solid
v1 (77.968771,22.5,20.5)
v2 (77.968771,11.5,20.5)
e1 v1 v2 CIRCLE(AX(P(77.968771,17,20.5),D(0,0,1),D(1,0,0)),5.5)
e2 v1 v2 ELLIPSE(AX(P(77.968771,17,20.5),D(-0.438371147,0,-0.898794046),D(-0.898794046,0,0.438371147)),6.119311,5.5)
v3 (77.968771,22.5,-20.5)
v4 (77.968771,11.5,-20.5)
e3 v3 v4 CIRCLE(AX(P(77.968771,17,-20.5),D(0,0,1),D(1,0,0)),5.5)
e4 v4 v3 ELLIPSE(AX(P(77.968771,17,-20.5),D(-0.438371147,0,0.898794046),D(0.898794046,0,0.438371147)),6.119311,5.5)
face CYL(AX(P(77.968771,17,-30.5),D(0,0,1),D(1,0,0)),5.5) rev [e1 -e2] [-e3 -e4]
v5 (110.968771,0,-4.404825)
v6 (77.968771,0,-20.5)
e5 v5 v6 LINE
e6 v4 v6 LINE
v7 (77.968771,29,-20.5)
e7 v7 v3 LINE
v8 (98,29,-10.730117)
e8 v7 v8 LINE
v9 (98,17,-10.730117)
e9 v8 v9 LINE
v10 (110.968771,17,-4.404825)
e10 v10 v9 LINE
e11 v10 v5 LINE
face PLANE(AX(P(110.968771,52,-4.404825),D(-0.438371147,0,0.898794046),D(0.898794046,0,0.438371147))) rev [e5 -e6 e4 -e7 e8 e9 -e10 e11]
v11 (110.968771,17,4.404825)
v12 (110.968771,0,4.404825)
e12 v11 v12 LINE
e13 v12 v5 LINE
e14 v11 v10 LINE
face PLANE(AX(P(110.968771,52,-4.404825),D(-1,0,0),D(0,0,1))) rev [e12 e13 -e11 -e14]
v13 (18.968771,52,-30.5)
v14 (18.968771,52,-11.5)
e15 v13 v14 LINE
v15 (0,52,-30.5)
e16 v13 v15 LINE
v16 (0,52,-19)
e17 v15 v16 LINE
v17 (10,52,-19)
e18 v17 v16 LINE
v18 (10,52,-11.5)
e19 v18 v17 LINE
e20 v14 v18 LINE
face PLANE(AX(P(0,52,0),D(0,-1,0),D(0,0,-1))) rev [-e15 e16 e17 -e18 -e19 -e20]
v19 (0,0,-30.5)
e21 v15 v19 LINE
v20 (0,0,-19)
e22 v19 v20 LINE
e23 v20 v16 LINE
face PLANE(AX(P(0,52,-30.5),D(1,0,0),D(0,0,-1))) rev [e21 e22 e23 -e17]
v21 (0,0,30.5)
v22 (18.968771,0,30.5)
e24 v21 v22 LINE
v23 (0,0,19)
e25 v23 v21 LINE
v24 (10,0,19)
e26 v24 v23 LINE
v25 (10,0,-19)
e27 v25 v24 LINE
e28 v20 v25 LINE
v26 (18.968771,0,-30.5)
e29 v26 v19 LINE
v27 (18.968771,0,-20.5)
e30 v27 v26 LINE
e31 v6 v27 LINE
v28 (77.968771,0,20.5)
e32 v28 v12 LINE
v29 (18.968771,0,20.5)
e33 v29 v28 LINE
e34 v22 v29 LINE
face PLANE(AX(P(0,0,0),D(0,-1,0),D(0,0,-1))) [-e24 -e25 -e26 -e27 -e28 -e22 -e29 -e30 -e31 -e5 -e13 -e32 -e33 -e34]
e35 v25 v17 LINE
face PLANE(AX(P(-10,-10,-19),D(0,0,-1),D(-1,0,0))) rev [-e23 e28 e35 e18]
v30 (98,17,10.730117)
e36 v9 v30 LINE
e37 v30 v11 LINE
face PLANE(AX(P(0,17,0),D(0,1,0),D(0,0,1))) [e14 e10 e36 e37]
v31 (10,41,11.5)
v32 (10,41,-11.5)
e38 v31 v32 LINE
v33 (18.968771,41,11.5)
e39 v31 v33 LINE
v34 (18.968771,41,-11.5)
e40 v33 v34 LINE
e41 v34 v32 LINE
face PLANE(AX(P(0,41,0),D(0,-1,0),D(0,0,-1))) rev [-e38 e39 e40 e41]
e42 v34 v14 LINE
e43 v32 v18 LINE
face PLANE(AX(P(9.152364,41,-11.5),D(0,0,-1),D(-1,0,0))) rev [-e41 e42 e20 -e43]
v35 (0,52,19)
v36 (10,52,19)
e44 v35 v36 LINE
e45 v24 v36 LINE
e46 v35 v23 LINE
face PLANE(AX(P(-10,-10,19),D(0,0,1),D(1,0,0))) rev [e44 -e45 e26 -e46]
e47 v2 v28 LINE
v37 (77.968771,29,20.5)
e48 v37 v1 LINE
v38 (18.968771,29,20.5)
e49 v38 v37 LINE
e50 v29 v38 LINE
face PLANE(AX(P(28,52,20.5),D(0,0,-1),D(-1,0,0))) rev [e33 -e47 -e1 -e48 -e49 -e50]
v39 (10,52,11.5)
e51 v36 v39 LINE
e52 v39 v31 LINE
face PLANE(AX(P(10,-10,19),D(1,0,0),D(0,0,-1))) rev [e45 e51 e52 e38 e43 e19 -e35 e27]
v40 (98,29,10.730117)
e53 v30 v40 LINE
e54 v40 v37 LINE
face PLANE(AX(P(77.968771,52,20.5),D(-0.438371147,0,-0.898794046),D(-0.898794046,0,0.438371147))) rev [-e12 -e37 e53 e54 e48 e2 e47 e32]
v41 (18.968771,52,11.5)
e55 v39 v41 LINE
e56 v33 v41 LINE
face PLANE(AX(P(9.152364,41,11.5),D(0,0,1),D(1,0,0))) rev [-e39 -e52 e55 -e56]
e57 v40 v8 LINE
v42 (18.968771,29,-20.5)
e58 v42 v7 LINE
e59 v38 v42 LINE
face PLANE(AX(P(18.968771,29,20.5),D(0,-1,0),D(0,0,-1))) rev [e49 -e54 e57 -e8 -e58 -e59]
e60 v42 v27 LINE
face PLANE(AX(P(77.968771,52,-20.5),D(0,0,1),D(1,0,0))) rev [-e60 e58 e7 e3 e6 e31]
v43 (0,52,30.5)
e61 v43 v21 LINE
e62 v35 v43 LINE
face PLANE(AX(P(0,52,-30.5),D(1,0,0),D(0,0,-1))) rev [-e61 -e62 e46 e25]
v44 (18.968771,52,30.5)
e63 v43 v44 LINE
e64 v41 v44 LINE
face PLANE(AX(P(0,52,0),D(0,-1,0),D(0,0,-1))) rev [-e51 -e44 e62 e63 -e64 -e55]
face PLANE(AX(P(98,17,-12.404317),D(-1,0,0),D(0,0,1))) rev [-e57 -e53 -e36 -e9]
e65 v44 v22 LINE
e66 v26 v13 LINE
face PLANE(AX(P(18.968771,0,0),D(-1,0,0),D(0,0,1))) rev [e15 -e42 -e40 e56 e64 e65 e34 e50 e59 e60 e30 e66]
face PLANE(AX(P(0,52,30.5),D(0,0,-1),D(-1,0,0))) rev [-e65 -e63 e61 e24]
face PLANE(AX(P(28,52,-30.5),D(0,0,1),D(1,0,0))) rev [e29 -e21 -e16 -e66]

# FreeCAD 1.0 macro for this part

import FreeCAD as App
import Part
import Sketcher

V = App.Vector
Q = App.Units.Quantity


def add_polygon(sketch, points):
    """Adds a closed chain of lines whose ends are joined by coincident constraints."""
    first, n = sketch.GeometryCount, len(points)
    for a, b in zip(points, points[1:] + points[:1]):
        sketch.addGeometry(Part.LineSegment(App.Vector(*a, 0), App.Vector(*b, 0)), False)
    for i in range(n):
        sketch.addConstraint(Sketcher.Constraint("Coincident", first + i, 2, first + (i + 1) % n, 1))

doc = App.newDocument("Part")
body = doc.addObject("PartDesign::Body", "Body")

# Sketch on XZ plane
sketch1 = body.newObject("Sketcher::SketchObject", "Sketch")
sketch1.AttachmentSupport = (doc.getObject("XZ_Plane"), [""])
sketch1.MapMode = "FlatFace"
add_polygon(sketch1, [(0, -30.5), (0, 30.5), (28, 30.5), (28, 20.5), (77.968771, 20.5), (110.968771, 4.404825), (110.968771, -4.404825), (77.968771, -20.5), (28, -20.5), (28, -30.5)])  # lines 0-9
sketch1.addConstraint(Sketcher.Constraint("Vertical", 0))
sketch1.addConstraint(Sketcher.Constraint("Horizontal", 1))
sketch1.addConstraint(Sketcher.Constraint("Vertical", 2))
sketch1.addConstraint(Sketcher.Constraint("Horizontal", 3))
sketch1.addConstraint(Sketcher.Constraint("Vertical", 5))
sketch1.addConstraint(Sketcher.Constraint("Horizontal", 7))
sketch1.addConstraint(Sketcher.Constraint("Vertical", 8))
sketch1.addConstraint(Sketcher.Constraint("Horizontal", 9))
sketch1.addConstraint(Sketcher.Constraint("Symmetric", 0, 2, 9, 2, -1, 1))
sketch1.addConstraint(Sketcher.Constraint("Symmetric", 3, 2, 6, 2, -1))
sketch1.addConstraint(Sketcher.Constraint("Vertical", 2, 2, 7, 2))
sketch1.addConstraint(Sketcher.Constraint("Equal", 4, 6))
sketch1.addConstraint(Sketcher.Constraint("DistanceX", 1, 1, 1, 2, Q("28 mm")))
sketch1.addConstraint(Sketcher.Constraint("DistanceY", 0, 1, 0, 2, Q("61 mm")))
sketch1.addConstraint(Sketcher.Constraint("DistanceY", 2, 2, 2, 1, Q("10 mm")))
sketch1.addConstraint(Sketcher.Constraint("Angle", 4, Q("-26 deg")))
sketch1.addConstraint(Sketcher.Constraint("DistanceX", 3, 2, 4, 2, Q("33 mm")))
sketch1.addConstraint(Sketcher.Constraint("DistanceX", 3, 1, 3, 2, Q("49.968771 mm")))
pad1 = body.newObject("PartDesign::Pad", "Pad")
pad1.Profile = sketch1
pad1.Length = 52
pad1.Reversed = True

# Sketch on YZ plane
sketch2 = body.newObject("Sketcher::SketchObject", "Sketch001")
sketch2.AttachmentSupport = (doc.getObject("YZ_Plane"), [""])
sketch2.MapMode = "FlatFace"
sketch2.AttachmentOffset = App.Placement(V(0, 0, 110.968771), App.Rotation())
add_polygon(sketch2, [(52, 20.5), (29, 20.5), (29, -20.5), (52, -20.5)])  # lines 0-3
sketch2.addConstraint(Sketcher.Constraint("Horizontal", 0))
sketch2.addConstraint(Sketcher.Constraint("Vertical", 1))
sketch2.addConstraint(Sketcher.Constraint("Horizontal", 2))
sketch2.addConstraint(Sketcher.Constraint("Vertical", 3))
sketch2.addConstraint(Sketcher.Constraint("DistanceX", 0, 2, 0, 1, Q("23 mm")))
sketch2.addConstraint(Sketcher.Constraint("DistanceY", 1, 2, 1, 1, Q("41 mm")))
sketch2.addConstraint(Sketcher.Constraint("DistanceX", -1, 1, 0, 2, Q("29 mm")))
sketch2.addConstraint(Sketcher.Constraint("DistanceY", -1, 1, 0, 2, Q("20.5 mm")))
pocket1 = body.newObject("PartDesign::Pocket", "Pocket")
pocket1.Profile = sketch2
pocket1.Length = 92

# Sketch on YZ plane
sketch3 = body.newObject("Sketcher::SketchObject", "Sketch002")
sketch3.AttachmentSupport = (doc.getObject("YZ_Plane"), [""])
sketch3.MapMode = "FlatFace"
sketch3.AttachmentOffset = App.Placement(V(0, 0, 28), App.Rotation())
add_polygon(sketch3, [(52, 30.5), (0, 30.5), (0, 20.5), (52, 20.5)])  # lines 0-3
add_polygon(sketch3, [(52, -20.5), (0, -20.5), (0, -30.5), (52, -30.5)])  # lines 4-7
sketch3.addConstraint(Sketcher.Constraint("Horizontal", 0))
sketch3.addConstraint(Sketcher.Constraint("Vertical", 1))
sketch3.addConstraint(Sketcher.Constraint("Horizontal", 2))
sketch3.addConstraint(Sketcher.Constraint("Vertical", 3))
sketch3.addConstraint(Sketcher.Constraint("Horizontal", 4))
sketch3.addConstraint(Sketcher.Constraint("Vertical", 5))
sketch3.addConstraint(Sketcher.Constraint("Horizontal", 6))
sketch3.addConstraint(Sketcher.Constraint("Vertical", 7))
sketch3.addConstraint(Sketcher.Constraint("Symmetric", 1, 2, 4, 2, -1, 1))
sketch3.addConstraint(Sketcher.Constraint("Symmetric", 0, 2, 5, 2, -1))
sketch3.addConstraint(Sketcher.Constraint("Vertical", 3, 2, 6, 2))
sketch3.addConstraint(Sketcher.Constraint("DistanceX", 0, 2, 0, 1, Q("52 mm")))
sketch3.addConstraint(Sketcher.Constraint("DistanceY", 1, 2, 1, 1, Q("10 mm")))
sketch3.addConstraint(Sketcher.Constraint("DistanceY", 4, 2, 1, 2, Q("41 mm")))
pocket2 = body.newObject("PartDesign::Pocket", "Pocket001")
pocket2.Profile = sketch3
pocket2.Length = 9.031229

# Sketch on XZ plane
sketch4 = body.newObject("Sketcher::SketchObject", "Sketch003")
sketch4.AttachmentSupport = (doc.getObject("XZ_Plane"), [""])
sketch4.MapMode = "FlatFace"
sketch4.AttachmentOffset = App.Placement(V(0, 0, -52), App.Rotation())
add_polygon(sketch4, [(120, -12.404317), (98, -12.404317), (98, 13.293631), (120, 13.293631)])  # lines 0-3
sketch4.addConstraint(Sketcher.Constraint("Horizontal", 0))
sketch4.addConstraint(Sketcher.Constraint("Vertical", 1))
sketch4.addConstraint(Sketcher.Constraint("Horizontal", 2))
sketch4.addConstraint(Sketcher.Constraint("Vertical", 3))
sketch4.addConstraint(Sketcher.Constraint("DistanceX", 0, 2, 0, 1, Q("22 mm")))
sketch4.addConstraint(Sketcher.Constraint("DistanceX", -1, 1, 0, 2, Q("98 mm")))
sketch4.addConstraint(Sketcher.Constraint("DistanceY", 1, 1, 1, 2, Q("25.697948 mm")))
sketch4.addConstraint(Sketcher.Constraint("DistanceY", -1, 1, 1, 2, Q("13.293631 mm")))
pocket3 = body.newObject("PartDesign::Pocket", "Pocket002")
pocket3.Profile = sketch4
pocket3.Length = 35
pocket3.Reversed = True

# Sketch on XZ plane
sketch5 = body.newObject("Sketcher::SketchObject", "Sketch004")
sketch5.AttachmentSupport = (doc.getObject("XZ_Plane"), [""])
sketch5.MapMode = "FlatFace"
sketch5.AttachmentOffset = App.Placement(V(0, 0, -52), App.Rotation())
add_polygon(sketch5, [(-10, -19), (-10, 19), (10, 19), (10, -19)])  # lines 0-3
sketch5.addConstraint(Sketcher.Constraint("Vertical", 0))
sketch5.addConstraint(Sketcher.Constraint("Horizontal", 1))
sketch5.addConstraint(Sketcher.Constraint("Vertical", 2))
sketch5.addConstraint(Sketcher.Constraint("Horizontal", 3))
sketch5.addConstraint(Sketcher.Constraint("Symmetric", 0, 2, 2, 2, -1, 1))
sketch5.addConstraint(Sketcher.Constraint("DistanceX", 1, 1, 1, 2, Q("20 mm")))
sketch5.addConstraint(Sketcher.Constraint("DistanceY", 0, 1, 0, 2, Q("38 mm")))
pocket4 = body.newObject("PartDesign::Pocket", "Pocket003")
pocket4.Profile = sketch5
pocket4.Length = 62
pocket4.Reversed = True

# Sketch on XZ plane
sketch6 = body.newObject("Sketcher::SketchObject", "Sketch005")
sketch6.AttachmentSupport = (doc.getObject("XZ_Plane"), [""])
sketch6.MapMode = "FlatFace"
sketch6.AttachmentOffset = App.Placement(V(0, 0, -52), App.Rotation())
add_polygon(sketch6, [(9.152364, -11.5), (9.152364, 11.5), (18.968771, 11.5), (18.968771, -11.5)])  # lines 0-3
sketch6.addConstraint(Sketcher.Constraint("Vertical", 0))
sketch6.addConstraint(Sketcher.Constraint("Horizontal", 1))
sketch6.addConstraint(Sketcher.Constraint("Vertical", 2))
sketch6.addConstraint(Sketcher.Constraint("Horizontal", 3))
sketch6.addConstraint(Sketcher.Constraint("DistanceY", 0, 1, 0, 2, Q("23 mm")))
sketch6.addConstraint(Sketcher.Constraint("DistanceY", -1, 1, 0, 2, Q("11.5 mm")))
sketch6.addConstraint(Sketcher.Constraint("DistanceX", 1, 1, 1, 2, Q("9.816407 mm")))
sketch6.addConstraint(Sketcher.Constraint("DistanceX", -1, 1, 1, 2, Q("18.968771 mm")))
pocket5 = body.newObject("PartDesign::Pocket", "Pocket004")
pocket5.Profile = sketch6
pocket5.Length = 11
pocket5.Reversed = True

# Sketch on XY plane
sketch7 = body.newObject("Sketcher::SketchObject", "Sketch006")
sketch7.AttachmentSupport = (doc.getObject("XY_Plane"), [""])
sketch7.MapMode = "FlatFace"
sketch7.AttachmentOffset = App.Placement(V(0, 0, 20.5), App.Rotation())
sketch7.addGeometry(Part.Circle(V(77.968771, 17, 0), V(0, 0, 1), 5.5), False)
sketch7.addConstraint(Sketcher.Constraint("Diameter", 0, Q("11 mm")))
sketch7.addConstraint(Sketcher.Constraint("DistanceY", -1, 1, 0, 3, Q("17 mm")))
sketch7.addConstraint(Sketcher.Constraint("DistanceX", -1, 1, 0, 3, Q("77.968771 mm")))
pocket6 = body.newObject("PartDesign::Pocket", "Pocket005")
pocket6.Profile = sketch7
pocket6.Type = "ThroughAll"

doc.recompute()
